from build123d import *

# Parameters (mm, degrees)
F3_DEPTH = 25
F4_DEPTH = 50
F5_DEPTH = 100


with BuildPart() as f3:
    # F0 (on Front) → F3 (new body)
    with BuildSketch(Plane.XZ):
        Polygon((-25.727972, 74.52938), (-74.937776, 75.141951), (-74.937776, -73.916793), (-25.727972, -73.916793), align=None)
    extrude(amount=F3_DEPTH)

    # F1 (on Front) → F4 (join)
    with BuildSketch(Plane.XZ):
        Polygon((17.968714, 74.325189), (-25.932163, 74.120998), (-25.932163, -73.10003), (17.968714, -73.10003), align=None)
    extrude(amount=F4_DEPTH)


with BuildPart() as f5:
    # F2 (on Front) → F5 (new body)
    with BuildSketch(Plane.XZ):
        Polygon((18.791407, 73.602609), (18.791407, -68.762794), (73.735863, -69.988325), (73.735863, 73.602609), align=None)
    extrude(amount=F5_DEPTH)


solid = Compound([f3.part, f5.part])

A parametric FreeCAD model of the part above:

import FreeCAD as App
import Part
import Sketcher

V = App.Vector
Q = App.Units.Quantity

doc = App.newDocument("Part")
body = doc.addObject("PartDesign::Body", "Body")

# Sketch on XZ plane
sketch1 = body.newObject("Sketcher::SketchObject", "Sketch")
sketch1.AttachmentSupport = (doc.getObject("XZ_Plane"), [""])
sketch1.MapMode = "FlatFace"
sketch1.addGeometry([
    Part.LineSegment(V(-26, 75, 0), V(-75, 75, 0)),
    Part.LineSegment(V(-75, 75, 0), V(-75, -74, 0)),
    Part.LineSegment(V(-75, -74, 0), V(-26, -74, 0)),
    Part.LineSegment(V(-26, -74, 0), V(-26, 75, 0)),
], False)
sketch1.addConstraint([
    Sketcher.Constraint("Coincident", 0, 2, 1, 1),
    Sketcher.Constraint("Coincident", 1, 2, 2, 1),
    Sketcher.Constraint("Coincident", 2, 2, 3, 1),
    Sketcher.Constraint("Coincident", 3, 2, 0, 1),
    Sketcher.Constraint("Vertical", 1),
    Sketcher.Constraint("Horizontal", 2),
    Sketcher.Constraint("Vertical", 3),
    Sketcher.Constraint("DistanceX", 2, 1, 2, 2, Q("49.209804 mm")),
    Sketcher.Constraint("DistanceY", 1, 2, 1, 1, Q("149.058744 mm")),
    Sketcher.Constraint("DistanceY", 3, 1, 3, 2, Q("148.446173 mm")),
    Sketcher.Constraint("DistanceY", -1, 1, 0, 2, Q("75.141951 mm")),
    Sketcher.Constraint("DistanceX", 0, 2, -1, 1, Q("74.937776 mm")),
])
pad1 = body.newObject("PartDesign::Pad", "Pad")
pad1.Profile = sketch1
pad1.Length = 25

# Sketch on XZ plane
sketch2 = body.newObject("Sketcher::SketchObject", "Sketch001")
sketch2.AttachmentSupport = (doc.getObject("XZ_Plane"), [""])
sketch2.MapMode = "FlatFace"
sketch2.addGeometry([
    Part.LineSegment(V(18, 74, 0), V(-26, 74, 0)),
    Part.LineSegment(V(-26, 74, 0), V(-26, -73, 0)),
    Part.LineSegment(V(-26, -73, 0), V(18, -73, 0)),
    Part.LineSegment(V(18, -73, 0), V(18, 74, 0)),
], False)
sketch2.addConstraint([
    Sketcher.Constraint("Coincident", 0, 2, 1, 1),
    Sketcher.Constraint("Coincident", 1, 2, 2, 1),
    Sketcher.Constraint("Coincident", 2, 2, 3, 1),
    Sketcher.Constraint("Coincident", 3, 2, 0, 1),
    Sketcher.Constraint("Vertical", 1),
    Sketcher.Constraint("Horizontal", 2),
    Sketcher.Constraint("Vertical", 3),
    Sketcher.Constraint("DistanceY", -1, 1, 0, 2, Q("74.120998 mm")),
    Sketcher.Constraint("DistanceY", 3, 1, 3, 2, Q("147.425219 mm")),
    Sketcher.Constraint("Distance", 0, Q("43.901352 mm")),
    Sketcher.Constraint("DistanceY", 1, 2, 1, 1, Q("147.221028 mm")),
    Sketcher.Constraint("DistanceX", 0, 2, -1, 1, Q("25.932163 mm")),
])
pad2 = body.newObject("PartDesign::Pad", "Pad001")
pad2.Profile = sketch2
pad2.Length = 50
body2 = doc.addObject("PartDesign::Body", "Body001")

# Sketch on XZ plane
sketch3 = body2.newObject("Sketcher::SketchObject", "Sketch002")
sketch3.AttachmentSupport = (doc.getObject("XZ_Plane001"), [""])
sketch3.MapMode = "FlatFace"
sketch3.addGeometry([
    Part.LineSegment(V(19, 74, 0), V(19, -69, 0)),
    Part.LineSegment(V(19, -69, 0), V(74, -70, 0)),
    Part.LineSegment(V(74, -70, 0), V(74, 74, 0)),
    Part.LineSegment(V(74, 74, 0), V(19, 74, 0)),
], False)
sketch3.addConstraint([
    Sketcher.Constraint("Coincident", 0, 2, 1, 1),
    Sketcher.Constraint("Coincident", 1, 2, 2, 1),
    Sketcher.Constraint("Coincident", 2, 2, 3, 1),
    Sketcher.Constraint("Coincident", 3, 2, 0, 1),
    Sketcher.Constraint("Vertical", 0),
    Sketcher.Constraint("Vertical", 2),
    Sketcher.Constraint("Horizontal", 3),
    Sketcher.Constraint("Distance", 1, Q("54.958122 mm")),
    Sketcher.Constraint("DistanceX", 3, 2, 3, 1, Q("54.944456 mm")),
    Sketcher.Constraint("DistanceY", 0, 2, 0, 1, Q("142.365403 mm")),
    Sketcher.Constraint("DistanceY", -1, 1, 2, 2, Q("73.602609 mm")),
    Sketcher.Constraint("DistanceX", -1, 1, 0, 2, Q("18.791407 mm")),
])
pad3 = body2.newObject("PartDesign::Pad", "Pad002")
pad3.Profile = sketch3
pad3.Length = 100

doc.recompute()
